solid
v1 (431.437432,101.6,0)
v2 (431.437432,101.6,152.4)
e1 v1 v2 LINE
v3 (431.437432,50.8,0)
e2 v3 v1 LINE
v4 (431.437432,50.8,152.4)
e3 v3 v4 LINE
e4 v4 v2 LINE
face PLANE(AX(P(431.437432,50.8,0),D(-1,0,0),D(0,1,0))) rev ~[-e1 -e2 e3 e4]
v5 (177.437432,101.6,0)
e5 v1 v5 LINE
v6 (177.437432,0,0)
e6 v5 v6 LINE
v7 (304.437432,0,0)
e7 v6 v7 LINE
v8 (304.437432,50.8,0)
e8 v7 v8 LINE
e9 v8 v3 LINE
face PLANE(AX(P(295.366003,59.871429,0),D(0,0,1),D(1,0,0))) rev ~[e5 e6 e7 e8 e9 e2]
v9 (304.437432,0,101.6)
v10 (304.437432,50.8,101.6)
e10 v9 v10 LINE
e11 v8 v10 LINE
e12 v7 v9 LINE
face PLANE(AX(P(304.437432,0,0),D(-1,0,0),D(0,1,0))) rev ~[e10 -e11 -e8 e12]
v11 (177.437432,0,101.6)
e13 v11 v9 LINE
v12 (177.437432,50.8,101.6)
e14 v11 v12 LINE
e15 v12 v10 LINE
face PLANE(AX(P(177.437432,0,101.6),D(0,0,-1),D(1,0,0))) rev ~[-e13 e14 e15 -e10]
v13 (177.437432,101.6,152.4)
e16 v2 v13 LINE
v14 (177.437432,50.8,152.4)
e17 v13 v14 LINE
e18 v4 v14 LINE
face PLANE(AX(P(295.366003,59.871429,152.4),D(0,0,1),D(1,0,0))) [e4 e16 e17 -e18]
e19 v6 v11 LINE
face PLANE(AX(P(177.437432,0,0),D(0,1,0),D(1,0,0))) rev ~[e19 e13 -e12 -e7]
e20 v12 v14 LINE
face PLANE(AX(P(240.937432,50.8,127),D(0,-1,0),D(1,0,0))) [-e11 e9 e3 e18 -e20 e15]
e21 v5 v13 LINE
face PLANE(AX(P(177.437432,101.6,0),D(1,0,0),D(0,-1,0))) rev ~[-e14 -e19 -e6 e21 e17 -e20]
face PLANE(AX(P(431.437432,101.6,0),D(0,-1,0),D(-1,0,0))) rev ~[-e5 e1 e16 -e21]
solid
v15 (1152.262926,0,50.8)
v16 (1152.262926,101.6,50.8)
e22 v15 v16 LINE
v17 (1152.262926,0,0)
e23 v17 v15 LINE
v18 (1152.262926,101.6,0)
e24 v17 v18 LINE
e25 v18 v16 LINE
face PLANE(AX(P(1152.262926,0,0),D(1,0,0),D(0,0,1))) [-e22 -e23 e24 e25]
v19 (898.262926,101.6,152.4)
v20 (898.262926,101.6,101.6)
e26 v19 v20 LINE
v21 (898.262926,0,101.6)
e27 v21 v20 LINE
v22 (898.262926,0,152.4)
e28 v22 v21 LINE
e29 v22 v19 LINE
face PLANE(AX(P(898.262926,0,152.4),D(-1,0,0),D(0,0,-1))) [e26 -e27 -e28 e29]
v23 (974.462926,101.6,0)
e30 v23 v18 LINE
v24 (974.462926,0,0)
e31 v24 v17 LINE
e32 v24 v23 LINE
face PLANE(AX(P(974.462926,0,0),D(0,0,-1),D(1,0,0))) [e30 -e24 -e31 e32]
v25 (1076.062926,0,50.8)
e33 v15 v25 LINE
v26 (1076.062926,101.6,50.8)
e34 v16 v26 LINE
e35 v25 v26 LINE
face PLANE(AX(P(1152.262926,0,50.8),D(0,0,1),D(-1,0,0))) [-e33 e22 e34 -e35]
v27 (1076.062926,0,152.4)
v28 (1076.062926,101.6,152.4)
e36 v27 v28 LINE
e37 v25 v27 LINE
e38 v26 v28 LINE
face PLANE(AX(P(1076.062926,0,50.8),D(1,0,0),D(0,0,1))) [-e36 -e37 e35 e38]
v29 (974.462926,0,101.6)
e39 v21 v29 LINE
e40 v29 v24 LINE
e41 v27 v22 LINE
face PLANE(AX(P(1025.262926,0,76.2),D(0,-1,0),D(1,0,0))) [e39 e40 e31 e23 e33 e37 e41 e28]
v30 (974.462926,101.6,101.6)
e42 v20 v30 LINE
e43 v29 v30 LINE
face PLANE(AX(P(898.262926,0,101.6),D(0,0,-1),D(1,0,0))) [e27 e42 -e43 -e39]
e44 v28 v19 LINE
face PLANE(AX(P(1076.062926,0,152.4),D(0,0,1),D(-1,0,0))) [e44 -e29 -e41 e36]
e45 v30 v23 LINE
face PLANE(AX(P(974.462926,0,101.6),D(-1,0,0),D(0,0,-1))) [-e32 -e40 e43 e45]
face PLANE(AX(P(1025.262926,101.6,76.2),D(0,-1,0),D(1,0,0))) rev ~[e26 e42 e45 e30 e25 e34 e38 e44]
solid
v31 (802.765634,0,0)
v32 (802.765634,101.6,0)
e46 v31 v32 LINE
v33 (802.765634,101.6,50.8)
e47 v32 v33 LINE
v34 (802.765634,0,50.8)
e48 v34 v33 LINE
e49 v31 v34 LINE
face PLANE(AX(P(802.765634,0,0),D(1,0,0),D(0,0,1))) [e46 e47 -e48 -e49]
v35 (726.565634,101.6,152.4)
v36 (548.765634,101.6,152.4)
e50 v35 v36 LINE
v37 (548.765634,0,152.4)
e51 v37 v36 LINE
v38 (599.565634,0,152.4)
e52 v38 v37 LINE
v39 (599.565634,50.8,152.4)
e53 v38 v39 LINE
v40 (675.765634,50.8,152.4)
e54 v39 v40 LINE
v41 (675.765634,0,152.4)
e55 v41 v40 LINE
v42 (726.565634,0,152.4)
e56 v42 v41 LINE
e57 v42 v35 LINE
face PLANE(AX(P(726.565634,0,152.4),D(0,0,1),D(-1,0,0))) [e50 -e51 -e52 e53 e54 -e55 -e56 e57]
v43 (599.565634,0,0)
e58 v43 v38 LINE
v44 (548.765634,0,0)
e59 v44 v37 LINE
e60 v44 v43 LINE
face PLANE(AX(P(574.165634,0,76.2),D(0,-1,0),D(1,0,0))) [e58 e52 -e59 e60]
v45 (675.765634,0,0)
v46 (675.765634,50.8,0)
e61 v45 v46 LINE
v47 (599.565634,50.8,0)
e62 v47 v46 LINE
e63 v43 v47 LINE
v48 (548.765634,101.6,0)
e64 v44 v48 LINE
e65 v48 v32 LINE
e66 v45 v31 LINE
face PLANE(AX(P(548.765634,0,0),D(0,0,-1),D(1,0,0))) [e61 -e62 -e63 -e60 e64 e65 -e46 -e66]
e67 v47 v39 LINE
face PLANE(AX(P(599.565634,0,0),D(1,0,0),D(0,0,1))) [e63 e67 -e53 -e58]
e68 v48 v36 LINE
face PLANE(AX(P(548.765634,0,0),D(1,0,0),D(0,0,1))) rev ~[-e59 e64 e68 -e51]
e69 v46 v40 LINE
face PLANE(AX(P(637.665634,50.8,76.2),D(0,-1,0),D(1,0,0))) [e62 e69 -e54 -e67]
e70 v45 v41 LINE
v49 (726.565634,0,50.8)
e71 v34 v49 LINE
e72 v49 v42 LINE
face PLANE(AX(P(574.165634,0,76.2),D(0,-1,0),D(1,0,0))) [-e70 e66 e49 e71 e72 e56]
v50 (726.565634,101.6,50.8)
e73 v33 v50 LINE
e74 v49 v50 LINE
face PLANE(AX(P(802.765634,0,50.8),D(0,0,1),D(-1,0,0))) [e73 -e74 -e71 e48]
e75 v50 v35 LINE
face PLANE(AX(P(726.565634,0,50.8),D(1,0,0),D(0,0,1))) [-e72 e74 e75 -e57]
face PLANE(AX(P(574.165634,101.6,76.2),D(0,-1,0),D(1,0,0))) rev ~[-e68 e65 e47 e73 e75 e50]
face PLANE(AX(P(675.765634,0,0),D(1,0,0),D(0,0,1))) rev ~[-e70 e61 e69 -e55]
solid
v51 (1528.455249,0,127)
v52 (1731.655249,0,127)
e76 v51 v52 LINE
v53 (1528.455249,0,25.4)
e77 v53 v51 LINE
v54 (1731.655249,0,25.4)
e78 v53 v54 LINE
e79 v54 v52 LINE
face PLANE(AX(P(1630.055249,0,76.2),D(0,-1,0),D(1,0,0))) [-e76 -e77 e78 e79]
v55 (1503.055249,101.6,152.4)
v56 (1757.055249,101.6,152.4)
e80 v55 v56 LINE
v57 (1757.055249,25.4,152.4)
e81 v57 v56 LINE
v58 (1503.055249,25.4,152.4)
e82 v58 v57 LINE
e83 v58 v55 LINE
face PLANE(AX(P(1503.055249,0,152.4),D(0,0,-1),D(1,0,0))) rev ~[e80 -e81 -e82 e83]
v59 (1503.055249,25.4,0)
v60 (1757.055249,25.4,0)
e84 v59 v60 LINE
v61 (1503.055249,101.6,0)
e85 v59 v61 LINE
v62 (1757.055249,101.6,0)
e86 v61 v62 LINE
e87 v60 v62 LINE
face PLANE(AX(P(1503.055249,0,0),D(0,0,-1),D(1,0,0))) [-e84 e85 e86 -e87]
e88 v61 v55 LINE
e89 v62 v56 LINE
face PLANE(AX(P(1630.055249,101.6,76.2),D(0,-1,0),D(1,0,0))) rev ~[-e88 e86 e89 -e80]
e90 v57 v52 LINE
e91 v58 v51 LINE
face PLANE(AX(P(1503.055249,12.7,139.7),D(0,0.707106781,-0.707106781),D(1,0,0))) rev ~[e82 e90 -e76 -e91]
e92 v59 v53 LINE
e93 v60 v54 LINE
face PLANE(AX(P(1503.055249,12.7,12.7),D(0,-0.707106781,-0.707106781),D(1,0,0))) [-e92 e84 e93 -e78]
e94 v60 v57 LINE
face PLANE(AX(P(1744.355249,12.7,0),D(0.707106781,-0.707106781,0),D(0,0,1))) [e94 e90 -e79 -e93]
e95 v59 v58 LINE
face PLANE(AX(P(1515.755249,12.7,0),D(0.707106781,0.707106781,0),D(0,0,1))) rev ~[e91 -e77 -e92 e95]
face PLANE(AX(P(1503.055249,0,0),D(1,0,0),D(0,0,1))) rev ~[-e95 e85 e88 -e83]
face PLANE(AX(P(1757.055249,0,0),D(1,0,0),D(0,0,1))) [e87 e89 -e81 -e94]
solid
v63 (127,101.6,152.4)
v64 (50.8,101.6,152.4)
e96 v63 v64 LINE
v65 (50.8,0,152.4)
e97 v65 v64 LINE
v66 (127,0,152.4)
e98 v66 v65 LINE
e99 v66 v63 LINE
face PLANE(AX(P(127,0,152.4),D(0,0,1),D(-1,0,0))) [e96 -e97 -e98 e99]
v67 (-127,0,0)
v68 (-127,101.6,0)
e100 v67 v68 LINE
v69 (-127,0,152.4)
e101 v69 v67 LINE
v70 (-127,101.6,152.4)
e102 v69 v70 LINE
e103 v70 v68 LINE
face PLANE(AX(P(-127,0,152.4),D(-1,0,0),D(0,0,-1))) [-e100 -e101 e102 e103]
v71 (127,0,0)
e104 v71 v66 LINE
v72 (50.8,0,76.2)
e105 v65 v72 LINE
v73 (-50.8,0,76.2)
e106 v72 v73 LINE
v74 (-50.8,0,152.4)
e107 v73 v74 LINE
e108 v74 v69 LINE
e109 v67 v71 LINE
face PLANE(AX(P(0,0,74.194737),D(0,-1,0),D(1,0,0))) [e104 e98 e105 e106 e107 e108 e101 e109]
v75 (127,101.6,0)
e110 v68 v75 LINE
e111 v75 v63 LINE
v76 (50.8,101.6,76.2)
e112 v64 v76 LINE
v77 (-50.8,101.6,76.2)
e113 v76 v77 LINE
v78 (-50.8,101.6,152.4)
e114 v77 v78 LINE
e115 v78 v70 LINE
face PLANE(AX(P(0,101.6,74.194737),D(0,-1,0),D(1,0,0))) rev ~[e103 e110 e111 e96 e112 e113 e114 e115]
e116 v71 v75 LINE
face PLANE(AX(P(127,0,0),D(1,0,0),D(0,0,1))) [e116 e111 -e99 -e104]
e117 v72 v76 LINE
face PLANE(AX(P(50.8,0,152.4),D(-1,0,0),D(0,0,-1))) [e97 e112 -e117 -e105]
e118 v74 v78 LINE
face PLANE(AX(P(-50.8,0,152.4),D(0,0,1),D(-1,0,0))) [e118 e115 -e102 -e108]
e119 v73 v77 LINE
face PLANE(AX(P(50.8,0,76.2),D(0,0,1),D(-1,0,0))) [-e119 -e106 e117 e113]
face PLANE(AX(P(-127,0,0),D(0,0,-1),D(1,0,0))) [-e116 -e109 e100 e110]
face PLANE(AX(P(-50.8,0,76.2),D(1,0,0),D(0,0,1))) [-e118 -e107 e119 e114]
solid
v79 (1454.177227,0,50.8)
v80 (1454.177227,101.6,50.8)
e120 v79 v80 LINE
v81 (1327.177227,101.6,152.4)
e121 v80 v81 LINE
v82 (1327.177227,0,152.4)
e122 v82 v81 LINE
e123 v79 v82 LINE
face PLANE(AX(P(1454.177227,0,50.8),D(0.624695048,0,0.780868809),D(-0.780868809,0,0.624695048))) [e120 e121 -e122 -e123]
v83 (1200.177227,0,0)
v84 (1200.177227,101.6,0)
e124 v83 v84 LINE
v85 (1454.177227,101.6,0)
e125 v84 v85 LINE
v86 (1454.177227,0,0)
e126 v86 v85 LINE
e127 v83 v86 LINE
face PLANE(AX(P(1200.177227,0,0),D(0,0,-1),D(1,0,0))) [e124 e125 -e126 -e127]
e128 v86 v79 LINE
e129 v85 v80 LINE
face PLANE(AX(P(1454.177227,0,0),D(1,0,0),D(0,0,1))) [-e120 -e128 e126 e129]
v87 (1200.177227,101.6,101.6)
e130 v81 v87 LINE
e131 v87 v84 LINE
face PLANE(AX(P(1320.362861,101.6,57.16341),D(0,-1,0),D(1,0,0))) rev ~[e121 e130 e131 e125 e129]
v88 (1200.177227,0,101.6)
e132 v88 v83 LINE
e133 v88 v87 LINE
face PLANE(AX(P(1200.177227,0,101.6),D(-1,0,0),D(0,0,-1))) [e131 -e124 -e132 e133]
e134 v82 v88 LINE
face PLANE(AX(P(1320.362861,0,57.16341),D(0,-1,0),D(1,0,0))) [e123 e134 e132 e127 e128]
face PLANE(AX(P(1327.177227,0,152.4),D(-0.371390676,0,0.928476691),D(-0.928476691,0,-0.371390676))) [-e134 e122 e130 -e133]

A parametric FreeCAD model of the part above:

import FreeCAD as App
import Part
import Sketcher

V = App.Vector
Q = App.Units.Quantity


def edges_at(feature, points):
    """Names of the edges that pass closest to the given points."""
    edges = feature.Shape.Edges
    near = lambda p: min(range(len(edges)), key=lambda i: edges[i].distToShape(Part.Vertex(*p))[0])
    return sorted({f"Edge{near(p) + 1}" for p in points})

doc = App.newDocument("Part")
body = doc.addObject("PartDesign::Body", "Body")

# Sketch on XZ plane
sketch1 = body.newObject("Sketcher::SketchObject", "Sketch")
sketch1.AttachmentSupport = (doc.getObject("XZ_Plane"), [""])
sketch1.MapMode = "FlatFace"
sketch1.addGeometry([
    Part.LineSegment(V(-127, 0, 0), V(127, 0, 0)),  # 0
    Part.LineSegment(V(127, 0, 0), V(127, 152, 0)),  # 1
    Part.LineSegment(V(127, 152, 0), V(51, 152, 0)),  # 2
    Part.LineSegment(V(51, 152, 0), V(51, 76, 0)),  # 3
    Part.LineSegment(V(51, 76, 0), V(-51, 76, 0)),  # 4
    Part.LineSegment(V(-51, 76, 0), V(-51, 152, 0)),  # 5
    Part.LineSegment(V(-51, 152, 0), V(-127, 152, 0)),  # 6
    Part.LineSegment(V(-127, 152, 0), V(-127, 0, 0)),  # 7
], False)
sketch1.addConstraint([
    Sketcher.Constraint("Coincident", 0, 2, 1, 1),
    Sketcher.Constraint("Coincident", 1, 2, 2, 1),
    Sketcher.Constraint("Coincident", 2, 2, 3, 1),
    Sketcher.Constraint("Coincident", 3, 2, 4, 1),
    Sketcher.Constraint("Coincident", 4, 2, 5, 1),
    Sketcher.Constraint("Coincident", 5, 2, 6, 1),
    Sketcher.Constraint("Coincident", 6, 2, 7, 1),
    Sketcher.Constraint("Coincident", 7, 2, 0, 1),
    Sketcher.Constraint("Horizontal", 0),
    Sketcher.Constraint("Vertical", 1),
    Sketcher.Constraint("Horizontal", 2),
    Sketcher.Constraint("Vertical", 3),
    Sketcher.Constraint("Horizontal", 4),
    Sketcher.Constraint("Vertical", 5),
    Sketcher.Constraint("Horizontal", 6),
    Sketcher.Constraint("Vertical", 7),
    Sketcher.Constraint("Symmetric", 0, 2, 7, 2, -1, 1),
    Sketcher.Constraint("Symmetric", 2, 2, 5, 2, -2),
    Sketcher.Constraint("Equal", 6, 3),
    Sketcher.Constraint("DistanceX", 0, 1, 0, 2, Q("10 in")),
    Sketcher.Constraint("DistanceX", 2, 2, 2, 1, Q("3 in")),
    Sketcher.Constraint("DistanceY", 1, 1, 1, 2, Q("6 in")),
])
pad1 = body.newObject("PartDesign::Pad", "Pad")
pad1.Profile = sketch1
pad1.Length = Q("4 in")
pad1.Reversed = True
body2 = doc.addObject("PartDesign::Body", "Body001")

# Sketch on XY plane
sketch2 = body2.newObject("Sketcher::SketchObject", "Sketch001")
sketch2.AttachmentSupport = (doc.getObject("XY_Plane001"), [""])
sketch2.MapMode = "FlatFace"
sketch2.addGeometry([
    Part.LineSegment(V(177, 102, 0), V(177, 0, 0)),  # 0
    Part.LineSegment(V(177, 0, 0), V(304, 0, 0)),  # 1
    Part.LineSegment(V(304, 0, 0), V(304, 51, 0)),  # 2
    Part.LineSegment(V(304, 51, 0), V(431, 51, 0)),  # 3
    Part.LineSegment(V(431, 51, 0), V(431, 102, 0)),  # 4
    Part.LineSegment(V(431, 102, 0), V(177, 102, 0)),  # 5
], False)
sketch2.addConstraint([
    Sketcher.Constraint("Coincident", 0, 2, 1, 1),
    Sketcher.Constraint("Coincident", 1, 2, 2, 1),
    Sketcher.Constraint("Coincident", 2, 2, 3, 1),
    Sketcher.Constraint("Coincident", 3, 2, 4, 1),
    Sketcher.Constraint("Coincident", 4, 2, 5, 1),
    Sketcher.Constraint("Coincident", 5, 2, 0, 1),
    Sketcher.Constraint("Vertical", 0),
    Sketcher.Constraint("Horizontal", 1),
    Sketcher.Constraint("Vertical", 2),
    Sketcher.Constraint("Horizontal", 3),
    Sketcher.Constraint("Vertical", 4),
    Sketcher.Constraint("Horizontal", 5),
    Sketcher.Constraint("PointOnObject", 0, 2, -1),
    Sketcher.Constraint("Equal", 1, 3),
    Sketcher.Constraint("Equal", 2, 4),
    Sketcher.Constraint("DistanceX", 1, 1, 1, 2, Q("5 in")),
    Sketcher.Constraint("DistanceY", 0, 2, 0, 1, Q("4 in")),
    Sketcher.Constraint("DistanceX", -1, 1, 0, 2, Q("177.437432 mm")),
])
pad2 = body2.newObject("PartDesign::Pad", "Pad001")
pad2.Profile = sketch2
pad2.Length = Q("6 in")

# Sketch on XZ plane
sketch3 = body2.newObject("Sketcher::SketchObject", "Sketch002")
sketch3.AttachmentSupport = (doc.getObject("XZ_Plane001"), [""])
sketch3.MapMode = "FlatFace"
sketch3.addGeometry([
    Part.LineSegment(V(177, 152, 0), V(177, 102, 0)),
    Part.LineSegment(V(177, 102, 0), V(304, 102, 0)),
    Part.LineSegment(V(304, 102, 0), V(304, 152, 0)),
    Part.LineSegment(V(304, 152, 0), V(177, 152, 0)),
], False)
sketch3.addConstraint([
    Sketcher.Constraint("Coincident", 0, 2, 1, 1),
    Sketcher.Constraint("Coincident", 1, 2, 2, 1),
    Sketcher.Constraint("Coincident", 2, 2, 3, 1),
    Sketcher.Constraint("Coincident", 3, 2, 0, 1),
    Sketcher.Constraint("Vertical", 0),
    Sketcher.Constraint("Horizontal", 1),
    Sketcher.Constraint("Vertical", 2),
    Sketcher.Constraint("Horizontal", 3),
    Sketcher.Constraint("DistanceX", 1, 1, 1, 2, Q("5 in")),
    Sketcher.Constraint("DistanceY", 0, 2, 0, 1, Q("2 in")),
    Sketcher.Constraint("DistanceY", -1, 1, 0, 2, Q("4 in")),
    Sketcher.Constraint("DistanceX", -1, 1, 0, 2, Q("177.437432 mm")),
])
pocket1 = body2.newObject("PartDesign::Pocket", "Pocket")
pocket1.Profile = sketch3
pocket1.Length = Q("2 in")
body3 = doc.addObject("PartDesign::Body", "Body002")

# Sketch on XZ plane
sketch4 = body3.newObject("Sketcher::SketchObject", "Sketch003")
sketch4.AttachmentSupport = (doc.getObject("XZ_Plane002"), [""])
sketch4.MapMode = "FlatFace"
sketch4.addGeometry([
    Part.LineSegment(V(549, 152, 0), V(549, 0, 0)),  # 0
    Part.LineSegment(V(549, 0, 0), V(803, 0, 0)),  # 1
    Part.LineSegment(V(803, 0, 0), V(803, 51, 0)),  # 2
    Part.LineSegment(V(803, 51, 0), V(727, 51, 0)),  # 3
    Part.LineSegment(V(727, 51, 0), V(727, 152, 0)),  # 4
    Part.LineSegment(V(727, 152, 0), V(549, 152, 0)),  # 5
], False)
sketch4.addConstraint([
    Sketcher.Constraint("Coincident", 0, 2, 1, 1),
    Sketcher.Constraint("Coincident", 1, 2, 2, 1),
    Sketcher.Constraint("Coincident", 2, 2, 3, 1),
    Sketcher.Constraint("Coincident", 3, 2, 4, 1),
    Sketcher.Constraint("Coincident", 4, 2, 5, 1),
    Sketcher.Constraint("Coincident", 5, 2, 0, 1),
    Sketcher.Constraint("Vertical", 0),
    Sketcher.Constraint("Horizontal", 1),
    Sketcher.Constraint("Vertical", 2),
    Sketcher.Constraint("Horizontal", 3),
    Sketcher.Constraint("Vertical", 4),
    Sketcher.Constraint("Horizontal", 5),
    Sketcher.Constraint("PointOnObject", 0, 2, -1),
    Sketcher.Constraint("DistanceX", 1, 1, 1, 2, Q("10 in")),
    Sketcher.Constraint("DistanceX", 3, 2, 3, 1, Q("3 in")),
    Sketcher.Constraint("DistanceY", 0, 2, 0, 1, Q("6 in")),
    Sketcher.Constraint("DistanceY", 2, 1, 2, 2, Q("2 in")),
    Sketcher.Constraint("DistanceX", -1, 1, 0, 2, Q("548.765634 mm")),
])
pad3 = body3.newObject("PartDesign::Pad", "Pad002")
pad3.Profile = sketch4
pad3.Length = Q("4 in")
pad3.Reversed = True

# Sketch on XZ plane
sketch5 = body3.newObject("Sketcher::SketchObject", "Sketch004")
sketch5.AttachmentSupport = (doc.getObject("XZ_Plane002"), [""])
sketch5.MapMode = "FlatFace"
sketch5.addGeometry([
    Part.LineSegment(V(600, 152, 0), V(600, 0, 0)),
    Part.LineSegment(V(600, 0, 0), V(676, 0, 0)),
    Part.LineSegment(V(676, 0, 0), V(676, 152, 0)),
    Part.LineSegment(V(676, 152, 0), V(600, 152, 0)),
], False)
sketch5.addConstraint([
    Sketcher.Constraint("Coincident", 0, 2, 1, 1),
    Sketcher.Constraint("Coincident", 1, 2, 2, 1),
    Sketcher.Constraint("Coincident", 2, 2, 3, 1),
    Sketcher.Constraint("Coincident", 3, 2, 0, 1),
    Sketcher.Constraint("Vertical", 0),
    Sketcher.Constraint("Horizontal", 1),
    Sketcher.Constraint("Vertical", 2),
    Sketcher.Constraint("Horizontal", 3),
    Sketcher.Constraint("PointOnObject", 0, 2, -1),
    Sketcher.Constraint("DistanceX", 1, 1, 1, 2, Q("3 in")),
    Sketcher.Constraint("DistanceY", 0, 2, 0, 1, Q("6 in")),
    Sketcher.Constraint("DistanceX", -1, 1, 0, 2, Q("599.565634 mm")),
])
pocket2 = body3.newObject("PartDesign::Pocket", "Pocket001")
pocket2.Profile = sketch5
pocket2.Length = Q("2 in")
body4 = doc.addObject("PartDesign::Body", "Body003")

# Sketch on XZ plane
sketch6 = body4.newObject("Sketcher::SketchObject", "Sketch005")
sketch6.AttachmentSupport = (doc.getObject("XZ_Plane003"), [""])
sketch6.MapMode = "FlatFace"
sketch6.addGeometry([
    Part.LineSegment(V(1076, 152, 0), V(898, 152, 0)),  # 0
    Part.LineSegment(V(898, 152, 0), V(898, 102, 0)),  # 1
    Part.LineSegment(V(898, 102, 0), V(974, 102, 0)),  # 2
    Part.LineSegment(V(974, 102, 0), V(974, 0, 0)),  # 3
    Part.LineSegment(V(974, 0, 0), V(1152, 0, 0)),  # 4
    Part.LineSegment(V(1152, 0, 0), V(1152, 51, 0)),  # 5
    Part.LineSegment(V(1152, 51, 0), V(1076, 51, 0)),  # 6
    Part.LineSegment(V(1076, 51, 0), V(1076, 152, 0)),  # 7
], False)
sketch6.addConstraint([
    Sketcher.Constraint("Coincident", 0, 2, 1, 1),
    Sketcher.Constraint("Coincident", 1, 2, 2, 1),
    Sketcher.Constraint("Coincident", 2, 2, 3, 1),
    Sketcher.Constraint("Coincident", 3, 2, 4, 1),
    Sketcher.Constraint("Coincident", 4, 2, 5, 1),
    Sketcher.Constraint("Coincident", 5, 2, 6, 1),
    Sketcher.Constraint("Coincident", 6, 2, 7, 1),
    Sketcher.Constraint("Coincident", 7, 2, 0, 1),
    Sketcher.Constraint("Horizontal", 0),
    Sketcher.Constraint("Vertical", 1),
    Sketcher.Constraint("Horizontal", 2),
    Sketcher.Constraint("Vertical", 3),
    Sketcher.Constraint("Horizontal", 4),
    Sketcher.Constraint("Vertical", 5),
    Sketcher.Constraint("Horizontal", 6),
    Sketcher.Constraint("Vertical", 7),
    Sketcher.Constraint("PointOnObject", 3, 2, -1),
    Sketcher.Constraint("Equal", 0, 4),
    Sketcher.Constraint("Equal", 1, 5),
    Sketcher.Constraint("DistanceX", 0, 2, 0, 1, Q("7 in")),
    Sketcher.Constraint("DistanceX", 2, 1, 2, 2, Q("3 in")),
    Sketcher.Constraint("DistanceY", 1, 2, 1, 1, Q("2 in")),
    Sketcher.Constraint("DistanceY", 3, 2, 3, 1, Q("4 in")),
    Sketcher.Constraint("DistanceX", -1, 1, 0, 2, Q("898.262926 mm")),
])
pad4 = body4.newObject("PartDesign::Pad", "Pad003")
pad4.Profile = sketch6
pad4.Length = Q("4 in")
pad4.Reversed = True
body5 = doc.addObject("PartDesign::Body", "Body004")

# Sketch on XZ plane
sketch7 = body5.newObject("Sketcher::SketchObject", "Sketch006")
sketch7.AttachmentSupport = (doc.getObject("XZ_Plane004"), [""])
sketch7.MapMode = "FlatFace"
sketch7.addGeometry([
    Part.LineSegment(V(1200, 102, 0), V(1200, 0, 0)),  # 0
    Part.LineSegment(V(1200, 0, 0), V(1454, 0, 0)),  # 1
    Part.LineSegment(V(1454, 0, 0), V(1454, 51, 0)),  # 2
    Part.LineSegment(V(1454, 51, 0), V(1327, 152, 0)),  # 3
    Part.LineSegment(V(1327, 152, 0), V(1200, 102, 0)),  # 4
], False)
sketch7.addConstraint([
    Sketcher.Constraint("Coincident", 0, 2, 1, 1),
    Sketcher.Constraint("Coincident", 1, 2, 2, 1),
    Sketcher.Constraint("Coincident", 2, 2, 3, 1),
    Sketcher.Constraint("Coincident", 3, 2, 4, 1),
    Sketcher.Constraint("Coincident", 4, 2, 0, 1),
    Sketcher.Constraint("Vertical", 0),
    Sketcher.Constraint("Horizontal", 1),
    Sketcher.Constraint("Vertical", 2),
    Sketcher.Constraint("PointOnObject", 0, 2, -1),
    Sketcher.Constraint("DistanceX", 1, 1, 1, 2, Q("10 in")),
    Sketcher.Constraint("DistanceY", 0, 2, 0, 1, Q("4 in")),
    Sketcher.Constraint("DistanceY", 2, 1, 2, 2, Q("2 in")),
    Sketcher.Constraint("DistanceY", -1, 1, 3, 2, Q("6 in")),
    Sketcher.Constraint("DistanceX", 3, 2, 2, 2, Q("5 in")),
    Sketcher.Constraint("DistanceX", -1, 1, 0, 2, Q("1200.177227 mm")),
])
pad5 = body5.newObject("PartDesign::Pad", "Pad004")
pad5.Profile = sketch7
pad5.Length = Q("4 in")
pad5.Reversed = True
body6 = doc.addObject("PartDesign::Body", "Body005")

# Sketch on XZ plane
sketch8 = body6.newObject("Sketcher::SketchObject", "Sketch007")
sketch8.AttachmentSupport = (doc.getObject("XZ_Plane005"), [""])
sketch8.MapMode = "FlatFace"
sketch8.addGeometry([
    Part.LineSegment(V(1503, 152, 0), V(1503, 0, 0)),
    Part.LineSegment(V(1503, 0, 0), V(1757, 0, 0)),
    Part.LineSegment(V(1757, 0, 0), V(1757, 152, 0)),
    Part.LineSegment(V(1757, 152, 0), V(1503, 152, 0)),
], False)
sketch8.addConstraint([
    Sketcher.Constraint("Coincident", 0, 2, 1, 1),
    Sketcher.Constraint("Coincident", 1, 2, 2, 1),
    Sketcher.Constraint("Coincident", 2, 2, 3, 1),
    Sketcher.Constraint("Coincident", 3, 2, 0, 1),
    Sketcher.Constraint("Vertical", 0),
    Sketcher.Constraint("Horizontal", 1),
    Sketcher.Constraint("Vertical", 2),
    Sketcher.Constraint("Horizontal", 3),
    Sketcher.Constraint("PointOnObject", 0, 2, -1),
    Sketcher.Constraint("DistanceX", 1, 1, 1, 2, Q("10 in")),
    Sketcher.Constraint("DistanceY", 0, 2, 0, 1, Q("6 in")),
    Sketcher.Constraint("DistanceX", -1, 1, 0, 2, Q("1503.055249 mm")),
])
pad6 = body6.newObject("PartDesign::Pad", "Pad005")
pad6.Profile = sketch8
pad6.Length = Q("4 in")
pad6.Reversed = True
doc.recompute()

chamfer = body6.newObject("PartDesign::Chamfer", "Chamfer")
chamfer.Base = (pad6, edges_at(pad6, [
    (1630.055, 0, 152.4),
    (1757.055, 0, 76.2),
    (1630.055, 0, 0),
    (1503.055, 0, 76.2),
]))
chamfer.Size = Q("1 in")

doc.recompute()
